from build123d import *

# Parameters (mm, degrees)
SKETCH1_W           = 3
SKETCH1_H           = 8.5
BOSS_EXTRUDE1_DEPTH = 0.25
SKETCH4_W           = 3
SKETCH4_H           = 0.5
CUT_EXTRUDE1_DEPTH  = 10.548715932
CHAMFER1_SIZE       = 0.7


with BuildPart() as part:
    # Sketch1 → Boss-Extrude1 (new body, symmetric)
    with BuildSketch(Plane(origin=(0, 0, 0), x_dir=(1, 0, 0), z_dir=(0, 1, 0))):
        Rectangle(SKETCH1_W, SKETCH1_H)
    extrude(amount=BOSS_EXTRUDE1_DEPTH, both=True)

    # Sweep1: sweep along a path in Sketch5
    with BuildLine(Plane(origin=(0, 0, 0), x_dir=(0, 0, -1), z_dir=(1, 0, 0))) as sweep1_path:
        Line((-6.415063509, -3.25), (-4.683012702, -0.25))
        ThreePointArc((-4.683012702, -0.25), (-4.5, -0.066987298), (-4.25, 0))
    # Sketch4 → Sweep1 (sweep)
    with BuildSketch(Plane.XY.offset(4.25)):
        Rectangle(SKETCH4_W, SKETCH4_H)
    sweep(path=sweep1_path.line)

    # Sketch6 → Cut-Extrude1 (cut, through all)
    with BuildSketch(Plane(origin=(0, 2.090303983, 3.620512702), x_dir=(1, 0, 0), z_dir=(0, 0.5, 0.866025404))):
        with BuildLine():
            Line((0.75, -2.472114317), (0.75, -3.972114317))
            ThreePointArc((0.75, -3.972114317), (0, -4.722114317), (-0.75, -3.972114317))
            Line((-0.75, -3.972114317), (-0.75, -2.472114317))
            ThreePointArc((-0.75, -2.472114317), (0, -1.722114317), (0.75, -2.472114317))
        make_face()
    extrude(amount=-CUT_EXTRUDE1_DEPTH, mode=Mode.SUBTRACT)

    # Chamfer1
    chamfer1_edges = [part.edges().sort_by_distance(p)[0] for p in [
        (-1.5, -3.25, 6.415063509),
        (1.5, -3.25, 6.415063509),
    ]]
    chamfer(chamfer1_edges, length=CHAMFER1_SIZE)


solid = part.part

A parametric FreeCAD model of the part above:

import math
import FreeCAD as App
import Part
import Sketcher
from FreeCAD import Vector
Q = App.Units.Quantity


def edges_at(feature, points):
    """Names of the edges that pass closest to the given points."""
    edges = feature.Shape.Edges
    near = lambda p: min(range(len(edges)), key=lambda i: edges[i].distToShape(Part.Vertex(*p))[0])
    return sorted({f"Edge{near(p) + 1}" for p in points})

doc = App.newDocument("Part")
body = doc.addObject("PartDesign::Body", "Body")

# Sketch on XZ plane
sketch1 = doc.addObject("Sketcher::SketchObject", "Sketch")
body.addObject(sketch1)
sketch1.AttachmentSupport = (doc.XZ_Plane, [""])
sketch1.MapMode = "FlatFace"
sketch1.addGeometry([
    Part.LineSegment(Vector(-1.5, -4.2, 0), Vector(-1.5, 4.2, 0)),
    Part.LineSegment(Vector(-1.5, 4.2, 0), Vector(1.5, 4.2, 0)),
    Part.LineSegment(Vector(1.5, 4.2, 0), Vector(1.5, -4.2, 0)),
    Part.LineSegment(Vector(1.5, -4.2, 0), Vector(-1.5, -4.2, 0)),
], False)
sketch1.addConstraint([
    Sketcher.Constraint("Coincident", 0, 2, 1, 1),
    Sketcher.Constraint("Coincident", 1, 2, 2, 1),
    Sketcher.Constraint("Coincident", 2, 2, 3, 1),
    Sketcher.Constraint("Coincident", 3, 2, 0, 1),
    Sketcher.Constraint("Vertical", 0),
    Sketcher.Constraint("Horizontal", 1),
    Sketcher.Constraint("Vertical", 2),
    Sketcher.Constraint("Horizontal", 3),
    Sketcher.Constraint("Symmetric", 0, 2, 2, 2, -1, 1),
    Sketcher.Constraint("DistanceX", 1, 1, 1, 2, Q("3 mm")),
    Sketcher.Constraint("DistanceY", 0, 1, 0, 2, Q("8.5 mm")),
])
pad1 = doc.addObject("PartDesign::Pad", "Pad")
body.addObject(pad1)
pad1.Profile = sketch1
pad1.Length = 0.5
pad1.Midplane = True

# Sketch on XY plane
sketch2 = doc.addObject("Sketcher::SketchObject", "Sketch001")
body.addObject(sketch2)
sketch2.AttachmentSupport = (doc.XY_Plane, [""])
sketch2.MapMode = "FlatFace"
sketch2.AttachmentOffset = App.Placement(Vector(0, 0, 4.25), App.Rotation())
sketch2.addGeometry([
    Part.LineSegment(Vector(-1.5, 0.2, 0), Vector(-1.5, -0.2, 0)),
    Part.LineSegment(Vector(-1.5, -0.2, 0), Vector(1.5, -0.2, 0)),
    Part.LineSegment(Vector(1.5, -0.2, 0), Vector(1.5, 0.2, 0)),
    Part.LineSegment(Vector(1.5, 0.2, 0), Vector(-1.5, 0.2, 0)),
], False)
sketch2.addConstraint([
    Sketcher.Constraint("Coincident", 0, 2, 1, 1),
    Sketcher.Constraint("Coincident", 1, 2, 2, 1),
    Sketcher.Constraint("Coincident", 2, 2, 3, 1),
    Sketcher.Constraint("Coincident", 3, 2, 0, 1),
    Sketcher.Constraint("Vertical", 0),
    Sketcher.Constraint("Horizontal", 1),
    Sketcher.Constraint("Vertical", 2),
    Sketcher.Constraint("Horizontal", 3),
    Sketcher.Constraint("Symmetric", 0, 2, 2, 2, -1, 1),
    Sketcher.Constraint("DistanceX", 1, 1, 1, 2, Q("3 mm")),
    Sketcher.Constraint("DistanceY", 0, 2, 0, 1, Q("0.5 mm")),
])

# Sketch on YZ plane
sketch3 = doc.addObject("Sketcher::SketchObject", "Sketch002")
body.addObject(sketch3)
sketch3.AttachmentSupport = (doc.YZ_Plane, [""])
sketch3.MapMode = "FlatFace"
sketch3.addGeometry([
    Part.LineSegment(Vector(-3.2, 6.4, 0), Vector(-0.2, 4.7, 0)),
    Part.ArcOfCircle(Part.Circle(Vector(-0.5, 4.2, 0), Vector(0, 0, 1), 0.5), math.radians(0), math.radians(60)),
], False)
sketch3.addConstraint([
    Sketcher.Constraint("Tangent", 0, 2, 1, 2),
    Sketcher.Constraint("PointOnObject", 1, 1, -2),
    Sketcher.Constraint("Radius", 1, Q("0.5 mm")),
    Sketcher.Constraint("Angle", 0, Q("-30 deg")),
    Sketcher.Constraint("DistanceX", 0, 1, 0, 2, Q("3 mm")),
    Sketcher.Constraint("DistanceY", -1, 1, 1, 3, Q("4.25 mm")),
    Sketcher.Constraint("DistanceY", -1, 1, 1, 1, Q("4.25 mm")),
])
doc.recompute()

additivepipe = doc.addObject("PartDesign::AdditivePipe", "AdditivePipe")
body.addObject(additivepipe)
additivepipe.Profile = sketch2
additivepipe.Spine = (sketch3, ["Edge1", "Edge2"])

# Sketch on an angled plane
sketch4 = doc.addObject("Sketcher::SketchObject", "Sketch003")
body.addObject(sketch4)
sketch4.Placement = App.Placement(Vector(0, 2.090304, 3.620513), App.Rotation(Vector(1, 0, 0), Vector(0, 0.866025404, -0.5), Vector(0, 0.5, 0.866025404), "ZXY"))
sketch4.addGeometry([
    Part.LineSegment(Vector(0.8, -4, 0), Vector(0.8, -2.5, 0)),
    Part.ArcOfCircle(Part.Circle(Vector(0, -2.5, 0), Vector(0, 0, 1), 0.8), math.radians(0), math.radians(180)),
    Part.LineSegment(Vector(-0.8, -2.5, 0), Vector(-0.8, -4, 0)),
    Part.ArcOfCircle(Part.Circle(Vector(0, -4, 0), Vector(0, 0, 1), 0.8), math.radians(180), math.radians(360)),
], False)
sketch4.addConstraint([
    Sketcher.Constraint("Tangent", 0, 2, 1, 1),
    Sketcher.Constraint("Tangent", 1, 2, 2, 1),
    Sketcher.Constraint("Tangent", 2, 2, 3, 1),
    Sketcher.Constraint("Tangent", 3, 2, 0, 1),
    Sketcher.Constraint("Vertical", 0),
    Sketcher.Constraint("Vertical", 2),
    Sketcher.Constraint("PointOnObject", 1, 3, -2),
    Sketcher.Constraint("Radius", 1, Q("0.75 mm")),
    Sketcher.Constraint("DistanceY", 0, 1, 0, 2, Q("1.5 mm")),
    Sketcher.Constraint("DistanceY", 1, 3, -1, 1, Q("2.472114 mm")),
])
pocket1 = doc.addObject("PartDesign::Pocket", "Pocket")
body.addObject(pocket1)
pocket1.Profile = sketch4
pocket1.Type = "ThroughAll"
doc.recompute()

chamfer = doc.addObject("PartDesign::Chamfer", "Chamfer")
body.addObject(chamfer)
chamfer.Base = (pocket1, edges_at(pocket1, [(-1.5, -3.25, 6.415), (1.5, -3.25, 6.415)]))
chamfer.Size = 0.7

doc.recompute()
